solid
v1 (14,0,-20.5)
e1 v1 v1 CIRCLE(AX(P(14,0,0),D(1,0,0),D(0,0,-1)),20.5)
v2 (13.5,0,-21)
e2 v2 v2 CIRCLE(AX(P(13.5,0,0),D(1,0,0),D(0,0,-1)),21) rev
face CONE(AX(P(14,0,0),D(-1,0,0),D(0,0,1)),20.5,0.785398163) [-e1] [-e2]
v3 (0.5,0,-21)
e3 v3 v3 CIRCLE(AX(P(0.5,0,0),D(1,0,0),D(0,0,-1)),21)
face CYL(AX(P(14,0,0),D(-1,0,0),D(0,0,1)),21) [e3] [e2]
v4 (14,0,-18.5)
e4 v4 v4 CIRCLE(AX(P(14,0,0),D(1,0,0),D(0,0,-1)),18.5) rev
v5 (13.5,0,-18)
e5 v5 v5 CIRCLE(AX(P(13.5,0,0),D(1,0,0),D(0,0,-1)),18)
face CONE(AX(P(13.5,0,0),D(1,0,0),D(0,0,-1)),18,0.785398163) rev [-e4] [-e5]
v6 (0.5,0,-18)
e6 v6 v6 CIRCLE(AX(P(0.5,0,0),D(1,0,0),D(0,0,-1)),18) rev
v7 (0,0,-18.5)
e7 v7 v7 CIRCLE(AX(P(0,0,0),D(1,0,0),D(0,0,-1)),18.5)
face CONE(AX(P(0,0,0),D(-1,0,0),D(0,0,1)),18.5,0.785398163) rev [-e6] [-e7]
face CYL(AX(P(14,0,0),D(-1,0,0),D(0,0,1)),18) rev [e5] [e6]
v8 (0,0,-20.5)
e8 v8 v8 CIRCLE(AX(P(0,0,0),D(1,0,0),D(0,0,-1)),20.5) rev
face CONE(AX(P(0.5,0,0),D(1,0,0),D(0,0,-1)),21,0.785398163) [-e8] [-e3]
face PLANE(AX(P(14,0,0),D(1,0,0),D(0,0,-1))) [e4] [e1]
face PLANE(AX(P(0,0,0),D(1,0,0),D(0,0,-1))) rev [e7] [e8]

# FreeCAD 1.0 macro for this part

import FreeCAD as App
import Part
import Sketcher
from FreeCAD import Vector


def edges_at(feature, points):
    """Names of the edges that pass closest to the given points."""
    edges = feature.Shape.Edges
    near = lambda p: min(range(len(edges)), key=lambda i: edges[i].distToShape(Part.Vertex(*p))[0])
    return sorted({f"Edge{near(p) + 1}" for p in points})

doc = App.newDocument("Part")
params = doc.addObject("Spreadsheet::Sheet", "Params")
for row, (alias, value) in enumerate([
    ("sketch1_diameter", "42 mm"),
    ("sketch1_diameter2", "36 mm"),
    ("pad1_length", "14 mm"),
    ("chamfer_size", "0.5 mm"),
], start=1):
    params.set(f"A{row}", alias)
    params.set(f"B{row}", "=" + value)
    params.setAlias(f"B{row}", alias)

body = doc.addObject("PartDesign::Body", "Body")

# Sketch on YZ plane
sketch1 = doc.addObject("Sketcher::SketchObject", "Sketch")
body.addObject(sketch1)
sketch1.AttachmentSupport = (doc.YZ_Plane, [""])
sketch1.MapMode = "FlatFace"
sketch1.addGeometry(Part.Circle(Vector(0, 0, 0), Vector(0, 0, 1), 21), False)
sketch1.addGeometry(Part.Circle(Vector(0, 0, 0), Vector(0, 0, 1), 18), False)
sketch1.addConstraint(Sketcher.Constraint("Coincident", 0, 3, -1, 1))
sketch1.addConstraint(Sketcher.Constraint("Coincident", 1, 3, -1, 1))
sketch1.addConstraint(Sketcher.Constraint("Diameter", 0, 42.0))
sketch1.addConstraint(Sketcher.Constraint("Diameter", 1, 36.0))
sketch1.setExpression("Constraints[2]", "Params.sketch1_diameter")
sketch1.setExpression("Constraints[3]", "Params.sketch1_diameter2")
pad1 = doc.addObject("PartDesign::Pad", "Pad")
body.addObject(pad1)
pad1.Profile = sketch1
pad1.setExpression("Length", "Params.pad1_length")
doc.recompute()

chamfer = doc.addObject("PartDesign::Chamfer", "Chamfer")
body.addObject(chamfer)
chamfer.Base = (pad1, edges_at(pad1, [
    (0, 0, 21),
    (14, 0, 21),
    (0, 0, 18),
    (14, 0, 18),
]))
chamfer.setExpression("Size", "Params.chamfer_size")

doc.recompute()
